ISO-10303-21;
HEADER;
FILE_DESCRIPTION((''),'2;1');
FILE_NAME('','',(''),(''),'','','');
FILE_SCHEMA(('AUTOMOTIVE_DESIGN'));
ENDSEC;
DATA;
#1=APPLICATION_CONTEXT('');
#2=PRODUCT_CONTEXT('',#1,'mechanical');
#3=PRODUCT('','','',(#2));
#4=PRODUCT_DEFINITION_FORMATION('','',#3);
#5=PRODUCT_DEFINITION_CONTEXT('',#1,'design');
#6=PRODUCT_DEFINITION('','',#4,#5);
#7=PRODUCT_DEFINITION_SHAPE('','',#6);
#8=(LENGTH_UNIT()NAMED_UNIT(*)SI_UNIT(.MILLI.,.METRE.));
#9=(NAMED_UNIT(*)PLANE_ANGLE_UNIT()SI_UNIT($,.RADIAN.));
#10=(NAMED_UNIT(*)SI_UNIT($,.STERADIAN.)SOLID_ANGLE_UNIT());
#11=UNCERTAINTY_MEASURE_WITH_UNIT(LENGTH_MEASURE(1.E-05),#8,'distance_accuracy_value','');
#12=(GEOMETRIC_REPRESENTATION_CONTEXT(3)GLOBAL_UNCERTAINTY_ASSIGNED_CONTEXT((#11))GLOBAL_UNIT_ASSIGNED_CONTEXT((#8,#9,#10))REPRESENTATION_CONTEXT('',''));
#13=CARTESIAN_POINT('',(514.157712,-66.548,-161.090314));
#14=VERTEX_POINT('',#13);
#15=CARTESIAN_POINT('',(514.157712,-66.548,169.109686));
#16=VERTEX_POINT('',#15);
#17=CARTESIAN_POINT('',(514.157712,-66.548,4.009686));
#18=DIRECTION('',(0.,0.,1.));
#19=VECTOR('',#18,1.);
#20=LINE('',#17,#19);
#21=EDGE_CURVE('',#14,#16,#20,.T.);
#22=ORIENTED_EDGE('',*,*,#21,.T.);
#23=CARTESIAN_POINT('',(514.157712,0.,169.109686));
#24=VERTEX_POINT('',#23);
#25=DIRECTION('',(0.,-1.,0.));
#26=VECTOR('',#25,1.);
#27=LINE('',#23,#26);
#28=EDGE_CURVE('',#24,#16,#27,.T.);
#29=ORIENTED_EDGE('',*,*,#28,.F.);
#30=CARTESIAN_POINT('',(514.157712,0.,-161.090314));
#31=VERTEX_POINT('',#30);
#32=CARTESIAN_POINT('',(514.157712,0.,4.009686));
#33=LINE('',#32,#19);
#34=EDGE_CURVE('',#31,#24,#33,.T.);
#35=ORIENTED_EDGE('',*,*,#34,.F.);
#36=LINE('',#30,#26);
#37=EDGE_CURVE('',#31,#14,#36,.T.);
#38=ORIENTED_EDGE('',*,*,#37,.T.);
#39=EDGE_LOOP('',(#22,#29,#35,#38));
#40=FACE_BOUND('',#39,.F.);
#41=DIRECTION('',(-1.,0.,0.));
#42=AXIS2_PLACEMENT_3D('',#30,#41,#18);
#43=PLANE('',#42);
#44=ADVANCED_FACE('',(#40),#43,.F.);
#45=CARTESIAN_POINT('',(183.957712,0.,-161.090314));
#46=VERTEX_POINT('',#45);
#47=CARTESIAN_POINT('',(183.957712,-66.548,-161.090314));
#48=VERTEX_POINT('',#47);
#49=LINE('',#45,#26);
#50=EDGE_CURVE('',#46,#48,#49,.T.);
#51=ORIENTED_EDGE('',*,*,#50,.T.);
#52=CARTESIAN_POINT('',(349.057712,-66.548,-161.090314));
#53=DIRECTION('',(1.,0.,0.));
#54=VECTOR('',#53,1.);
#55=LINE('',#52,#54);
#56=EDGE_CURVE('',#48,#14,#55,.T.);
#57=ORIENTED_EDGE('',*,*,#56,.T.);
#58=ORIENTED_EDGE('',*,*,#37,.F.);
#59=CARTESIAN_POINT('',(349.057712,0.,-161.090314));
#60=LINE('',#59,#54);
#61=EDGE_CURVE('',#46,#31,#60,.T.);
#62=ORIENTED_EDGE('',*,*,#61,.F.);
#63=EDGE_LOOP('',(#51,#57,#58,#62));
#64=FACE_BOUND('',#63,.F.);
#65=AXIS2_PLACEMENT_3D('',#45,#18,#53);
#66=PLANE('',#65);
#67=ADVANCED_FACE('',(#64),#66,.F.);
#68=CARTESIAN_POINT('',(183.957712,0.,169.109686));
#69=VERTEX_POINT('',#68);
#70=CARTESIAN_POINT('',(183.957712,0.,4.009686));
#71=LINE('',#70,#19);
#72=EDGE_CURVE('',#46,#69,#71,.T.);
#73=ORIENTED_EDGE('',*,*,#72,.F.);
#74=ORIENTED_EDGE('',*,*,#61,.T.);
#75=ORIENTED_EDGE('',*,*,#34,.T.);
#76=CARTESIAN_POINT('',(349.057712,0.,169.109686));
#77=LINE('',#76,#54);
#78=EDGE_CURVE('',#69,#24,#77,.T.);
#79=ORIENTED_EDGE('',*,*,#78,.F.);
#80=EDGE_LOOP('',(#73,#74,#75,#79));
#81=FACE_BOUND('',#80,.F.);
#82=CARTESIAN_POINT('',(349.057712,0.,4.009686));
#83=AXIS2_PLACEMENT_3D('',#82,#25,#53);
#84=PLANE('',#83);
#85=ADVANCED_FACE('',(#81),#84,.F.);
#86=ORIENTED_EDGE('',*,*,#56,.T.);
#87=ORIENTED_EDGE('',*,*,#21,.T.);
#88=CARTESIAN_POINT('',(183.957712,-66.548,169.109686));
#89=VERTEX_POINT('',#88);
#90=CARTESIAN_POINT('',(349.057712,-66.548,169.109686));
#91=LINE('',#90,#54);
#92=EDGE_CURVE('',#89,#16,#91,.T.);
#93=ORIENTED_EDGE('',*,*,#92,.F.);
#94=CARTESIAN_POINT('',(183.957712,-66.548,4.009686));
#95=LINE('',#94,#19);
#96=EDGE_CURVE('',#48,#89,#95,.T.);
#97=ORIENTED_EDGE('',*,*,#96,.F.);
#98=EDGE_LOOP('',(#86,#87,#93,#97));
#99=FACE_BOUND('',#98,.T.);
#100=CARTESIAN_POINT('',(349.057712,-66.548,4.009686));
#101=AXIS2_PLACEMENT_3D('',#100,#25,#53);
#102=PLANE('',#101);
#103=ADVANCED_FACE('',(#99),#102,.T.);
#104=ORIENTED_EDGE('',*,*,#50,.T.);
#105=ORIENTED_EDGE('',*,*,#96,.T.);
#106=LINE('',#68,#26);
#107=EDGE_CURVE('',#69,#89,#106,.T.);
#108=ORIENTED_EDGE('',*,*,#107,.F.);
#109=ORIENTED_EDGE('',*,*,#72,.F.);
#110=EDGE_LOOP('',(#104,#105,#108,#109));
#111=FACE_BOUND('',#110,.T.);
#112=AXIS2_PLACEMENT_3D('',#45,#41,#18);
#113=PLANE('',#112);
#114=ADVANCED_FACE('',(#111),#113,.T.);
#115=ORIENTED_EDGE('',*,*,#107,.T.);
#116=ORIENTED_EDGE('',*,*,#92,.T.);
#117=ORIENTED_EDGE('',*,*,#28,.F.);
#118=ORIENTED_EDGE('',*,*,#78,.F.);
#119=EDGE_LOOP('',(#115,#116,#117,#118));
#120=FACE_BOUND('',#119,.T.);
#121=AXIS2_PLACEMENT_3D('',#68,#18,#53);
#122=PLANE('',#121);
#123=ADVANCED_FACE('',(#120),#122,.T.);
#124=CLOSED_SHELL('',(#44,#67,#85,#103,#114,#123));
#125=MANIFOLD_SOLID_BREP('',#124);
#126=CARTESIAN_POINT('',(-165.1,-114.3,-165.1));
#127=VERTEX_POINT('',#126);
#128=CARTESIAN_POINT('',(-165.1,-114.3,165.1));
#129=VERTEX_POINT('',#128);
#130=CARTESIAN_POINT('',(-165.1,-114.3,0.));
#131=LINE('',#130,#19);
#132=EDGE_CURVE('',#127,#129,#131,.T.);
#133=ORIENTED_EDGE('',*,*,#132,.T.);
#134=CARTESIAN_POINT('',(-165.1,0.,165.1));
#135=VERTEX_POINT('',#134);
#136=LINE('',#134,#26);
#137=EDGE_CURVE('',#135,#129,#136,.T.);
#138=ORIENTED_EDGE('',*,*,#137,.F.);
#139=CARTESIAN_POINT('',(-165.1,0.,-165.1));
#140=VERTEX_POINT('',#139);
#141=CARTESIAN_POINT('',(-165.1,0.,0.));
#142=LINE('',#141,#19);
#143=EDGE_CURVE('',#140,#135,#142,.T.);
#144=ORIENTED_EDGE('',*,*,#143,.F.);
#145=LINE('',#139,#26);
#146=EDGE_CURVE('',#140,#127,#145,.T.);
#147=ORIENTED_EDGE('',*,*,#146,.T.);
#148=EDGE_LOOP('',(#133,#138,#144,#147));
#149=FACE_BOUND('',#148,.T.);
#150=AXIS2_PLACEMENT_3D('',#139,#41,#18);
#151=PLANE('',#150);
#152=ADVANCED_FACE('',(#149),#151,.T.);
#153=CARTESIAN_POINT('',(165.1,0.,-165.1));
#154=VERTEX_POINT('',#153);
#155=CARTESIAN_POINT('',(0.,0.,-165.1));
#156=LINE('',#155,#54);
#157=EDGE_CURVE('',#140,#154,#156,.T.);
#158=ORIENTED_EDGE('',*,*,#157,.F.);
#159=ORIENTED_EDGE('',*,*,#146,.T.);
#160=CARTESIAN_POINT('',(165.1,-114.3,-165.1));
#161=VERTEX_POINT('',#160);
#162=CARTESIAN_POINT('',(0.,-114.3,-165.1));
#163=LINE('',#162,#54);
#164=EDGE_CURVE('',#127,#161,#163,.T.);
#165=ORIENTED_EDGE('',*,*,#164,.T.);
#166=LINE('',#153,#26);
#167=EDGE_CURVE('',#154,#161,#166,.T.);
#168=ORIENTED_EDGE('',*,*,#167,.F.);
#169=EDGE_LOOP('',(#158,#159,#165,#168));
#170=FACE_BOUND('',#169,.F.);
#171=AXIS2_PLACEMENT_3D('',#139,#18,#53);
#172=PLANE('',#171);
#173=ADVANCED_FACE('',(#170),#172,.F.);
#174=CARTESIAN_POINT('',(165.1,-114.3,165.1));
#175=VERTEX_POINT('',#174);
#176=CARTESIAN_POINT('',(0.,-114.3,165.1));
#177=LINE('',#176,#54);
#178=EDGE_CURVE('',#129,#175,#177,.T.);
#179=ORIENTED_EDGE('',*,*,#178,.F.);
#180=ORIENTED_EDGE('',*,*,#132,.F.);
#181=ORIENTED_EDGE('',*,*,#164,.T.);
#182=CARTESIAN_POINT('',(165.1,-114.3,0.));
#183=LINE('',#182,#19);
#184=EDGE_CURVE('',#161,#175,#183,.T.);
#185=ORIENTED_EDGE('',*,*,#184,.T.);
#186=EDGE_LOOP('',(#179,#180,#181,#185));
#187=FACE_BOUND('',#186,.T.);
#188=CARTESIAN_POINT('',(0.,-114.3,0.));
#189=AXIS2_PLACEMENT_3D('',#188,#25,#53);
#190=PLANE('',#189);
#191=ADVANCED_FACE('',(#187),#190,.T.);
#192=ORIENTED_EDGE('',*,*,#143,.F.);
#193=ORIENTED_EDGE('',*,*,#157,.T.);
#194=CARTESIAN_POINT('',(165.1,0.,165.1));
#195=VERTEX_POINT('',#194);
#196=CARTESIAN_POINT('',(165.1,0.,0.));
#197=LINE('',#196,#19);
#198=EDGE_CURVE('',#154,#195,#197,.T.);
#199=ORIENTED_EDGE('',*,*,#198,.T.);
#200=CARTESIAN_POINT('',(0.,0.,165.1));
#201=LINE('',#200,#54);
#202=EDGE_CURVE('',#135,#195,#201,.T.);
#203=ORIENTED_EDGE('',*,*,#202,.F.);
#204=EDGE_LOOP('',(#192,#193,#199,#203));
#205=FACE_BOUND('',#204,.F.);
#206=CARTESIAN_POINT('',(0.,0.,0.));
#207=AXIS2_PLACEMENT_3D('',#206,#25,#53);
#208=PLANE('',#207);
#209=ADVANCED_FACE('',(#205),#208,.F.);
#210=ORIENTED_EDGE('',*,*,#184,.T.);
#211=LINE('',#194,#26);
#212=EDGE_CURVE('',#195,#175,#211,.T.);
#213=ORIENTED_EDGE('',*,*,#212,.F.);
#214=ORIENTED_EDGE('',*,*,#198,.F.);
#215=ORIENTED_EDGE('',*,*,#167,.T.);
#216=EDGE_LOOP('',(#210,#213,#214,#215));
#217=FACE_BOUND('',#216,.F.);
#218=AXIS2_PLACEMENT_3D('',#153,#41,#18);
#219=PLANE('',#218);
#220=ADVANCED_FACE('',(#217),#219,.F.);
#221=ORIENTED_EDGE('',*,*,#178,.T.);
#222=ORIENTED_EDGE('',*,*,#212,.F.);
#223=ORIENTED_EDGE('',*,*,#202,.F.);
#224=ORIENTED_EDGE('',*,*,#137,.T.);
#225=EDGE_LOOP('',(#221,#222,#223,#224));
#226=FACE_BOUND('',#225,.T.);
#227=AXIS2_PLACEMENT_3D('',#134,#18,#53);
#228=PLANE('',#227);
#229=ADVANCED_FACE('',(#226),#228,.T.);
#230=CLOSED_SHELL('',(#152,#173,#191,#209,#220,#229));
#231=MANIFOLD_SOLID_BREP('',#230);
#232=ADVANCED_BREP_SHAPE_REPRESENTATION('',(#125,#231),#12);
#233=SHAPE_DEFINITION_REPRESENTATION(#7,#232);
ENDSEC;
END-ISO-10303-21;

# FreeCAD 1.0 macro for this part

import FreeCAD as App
import Part
import Sketcher
Q = App.Units.Quantity


def add_polygon(sketch, points):
    """Adds a closed chain of lines whose ends are joined by coincident constraints."""
    first, n = sketch.GeometryCount, len(points)
    for a, b in zip(points, points[1:] + points[:1]):
        sketch.addGeometry(Part.LineSegment(App.Vector(*a, 0), App.Vector(*b, 0)), False)
    for i in range(n):
        sketch.addConstraint(Sketcher.Constraint("Coincident", first + i, 2, first + (i + 1) % n, 1))

doc = App.newDocument("Part")
body = doc.addObject("PartDesign::Body", "Body")

sketch1 = body.newObject("Sketcher::SketchObject", "Sketch")
sketch1.AttachmentSupport = (doc.getObject("XZ_Plane"), [""])
sketch1.MapMode = "FlatFace"
add_polygon(sketch1, [(-165, 165), (-165, -165), (165, -165), (165, 165)])
sketch1.addConstraint([
    Sketcher.Constraint("Vertical", 0),
    Sketcher.Constraint("Horizontal", 1),
    Sketcher.Constraint("Vertical", 2),
    Sketcher.Constraint("Horizontal", 3),
    Sketcher.Constraint("Symmetric", 0, 2, 2, 2, -1, 1),
    Sketcher.Constraint("Equal", 3, 0),
    Sketcher.Constraint("DistanceX", 1, 1, 1, 2, Q("13 in")),
])
pad1 = body.newObject("PartDesign::Pad", "Pad")
pad1.Profile = sketch1
pad1.Length = Q("4.5 in")
body2 = doc.addObject("PartDesign::Body", "Body001")

sketch2 = body2.newObject("Sketcher::SketchObject", "Sketch001")
sketch2.AttachmentSupport = (doc.getObject("XZ_Plane001"), [""])
sketch2.MapMode = "FlatFace"
add_polygon(sketch2, [(184, 169), (184, -161), (514, -161), (514, 169)])
sketch2.addConstraint([
    Sketcher.Constraint("Vertical", 0),
    Sketcher.Constraint("Horizontal", 1),
    Sketcher.Constraint("Vertical", 2),
    Sketcher.Constraint("Horizontal", 3),
    Sketcher.Constraint("Equal", 3, 0),
    Sketcher.Constraint("DistanceX", 1, 1, 1, 2, Q("13 in")),
    Sketcher.Constraint("DistanceX", -1, 1, 0, 2, 183.957712),
    Sketcher.Constraint("DistanceY", 0, 2, -1, 1, 161.090314),
])
pad2 = body2.newObject("PartDesign::Pad", "Pad001")
pad2.Profile = sketch2
pad2.Length = Q("2.62 in")

doc.recompute()
